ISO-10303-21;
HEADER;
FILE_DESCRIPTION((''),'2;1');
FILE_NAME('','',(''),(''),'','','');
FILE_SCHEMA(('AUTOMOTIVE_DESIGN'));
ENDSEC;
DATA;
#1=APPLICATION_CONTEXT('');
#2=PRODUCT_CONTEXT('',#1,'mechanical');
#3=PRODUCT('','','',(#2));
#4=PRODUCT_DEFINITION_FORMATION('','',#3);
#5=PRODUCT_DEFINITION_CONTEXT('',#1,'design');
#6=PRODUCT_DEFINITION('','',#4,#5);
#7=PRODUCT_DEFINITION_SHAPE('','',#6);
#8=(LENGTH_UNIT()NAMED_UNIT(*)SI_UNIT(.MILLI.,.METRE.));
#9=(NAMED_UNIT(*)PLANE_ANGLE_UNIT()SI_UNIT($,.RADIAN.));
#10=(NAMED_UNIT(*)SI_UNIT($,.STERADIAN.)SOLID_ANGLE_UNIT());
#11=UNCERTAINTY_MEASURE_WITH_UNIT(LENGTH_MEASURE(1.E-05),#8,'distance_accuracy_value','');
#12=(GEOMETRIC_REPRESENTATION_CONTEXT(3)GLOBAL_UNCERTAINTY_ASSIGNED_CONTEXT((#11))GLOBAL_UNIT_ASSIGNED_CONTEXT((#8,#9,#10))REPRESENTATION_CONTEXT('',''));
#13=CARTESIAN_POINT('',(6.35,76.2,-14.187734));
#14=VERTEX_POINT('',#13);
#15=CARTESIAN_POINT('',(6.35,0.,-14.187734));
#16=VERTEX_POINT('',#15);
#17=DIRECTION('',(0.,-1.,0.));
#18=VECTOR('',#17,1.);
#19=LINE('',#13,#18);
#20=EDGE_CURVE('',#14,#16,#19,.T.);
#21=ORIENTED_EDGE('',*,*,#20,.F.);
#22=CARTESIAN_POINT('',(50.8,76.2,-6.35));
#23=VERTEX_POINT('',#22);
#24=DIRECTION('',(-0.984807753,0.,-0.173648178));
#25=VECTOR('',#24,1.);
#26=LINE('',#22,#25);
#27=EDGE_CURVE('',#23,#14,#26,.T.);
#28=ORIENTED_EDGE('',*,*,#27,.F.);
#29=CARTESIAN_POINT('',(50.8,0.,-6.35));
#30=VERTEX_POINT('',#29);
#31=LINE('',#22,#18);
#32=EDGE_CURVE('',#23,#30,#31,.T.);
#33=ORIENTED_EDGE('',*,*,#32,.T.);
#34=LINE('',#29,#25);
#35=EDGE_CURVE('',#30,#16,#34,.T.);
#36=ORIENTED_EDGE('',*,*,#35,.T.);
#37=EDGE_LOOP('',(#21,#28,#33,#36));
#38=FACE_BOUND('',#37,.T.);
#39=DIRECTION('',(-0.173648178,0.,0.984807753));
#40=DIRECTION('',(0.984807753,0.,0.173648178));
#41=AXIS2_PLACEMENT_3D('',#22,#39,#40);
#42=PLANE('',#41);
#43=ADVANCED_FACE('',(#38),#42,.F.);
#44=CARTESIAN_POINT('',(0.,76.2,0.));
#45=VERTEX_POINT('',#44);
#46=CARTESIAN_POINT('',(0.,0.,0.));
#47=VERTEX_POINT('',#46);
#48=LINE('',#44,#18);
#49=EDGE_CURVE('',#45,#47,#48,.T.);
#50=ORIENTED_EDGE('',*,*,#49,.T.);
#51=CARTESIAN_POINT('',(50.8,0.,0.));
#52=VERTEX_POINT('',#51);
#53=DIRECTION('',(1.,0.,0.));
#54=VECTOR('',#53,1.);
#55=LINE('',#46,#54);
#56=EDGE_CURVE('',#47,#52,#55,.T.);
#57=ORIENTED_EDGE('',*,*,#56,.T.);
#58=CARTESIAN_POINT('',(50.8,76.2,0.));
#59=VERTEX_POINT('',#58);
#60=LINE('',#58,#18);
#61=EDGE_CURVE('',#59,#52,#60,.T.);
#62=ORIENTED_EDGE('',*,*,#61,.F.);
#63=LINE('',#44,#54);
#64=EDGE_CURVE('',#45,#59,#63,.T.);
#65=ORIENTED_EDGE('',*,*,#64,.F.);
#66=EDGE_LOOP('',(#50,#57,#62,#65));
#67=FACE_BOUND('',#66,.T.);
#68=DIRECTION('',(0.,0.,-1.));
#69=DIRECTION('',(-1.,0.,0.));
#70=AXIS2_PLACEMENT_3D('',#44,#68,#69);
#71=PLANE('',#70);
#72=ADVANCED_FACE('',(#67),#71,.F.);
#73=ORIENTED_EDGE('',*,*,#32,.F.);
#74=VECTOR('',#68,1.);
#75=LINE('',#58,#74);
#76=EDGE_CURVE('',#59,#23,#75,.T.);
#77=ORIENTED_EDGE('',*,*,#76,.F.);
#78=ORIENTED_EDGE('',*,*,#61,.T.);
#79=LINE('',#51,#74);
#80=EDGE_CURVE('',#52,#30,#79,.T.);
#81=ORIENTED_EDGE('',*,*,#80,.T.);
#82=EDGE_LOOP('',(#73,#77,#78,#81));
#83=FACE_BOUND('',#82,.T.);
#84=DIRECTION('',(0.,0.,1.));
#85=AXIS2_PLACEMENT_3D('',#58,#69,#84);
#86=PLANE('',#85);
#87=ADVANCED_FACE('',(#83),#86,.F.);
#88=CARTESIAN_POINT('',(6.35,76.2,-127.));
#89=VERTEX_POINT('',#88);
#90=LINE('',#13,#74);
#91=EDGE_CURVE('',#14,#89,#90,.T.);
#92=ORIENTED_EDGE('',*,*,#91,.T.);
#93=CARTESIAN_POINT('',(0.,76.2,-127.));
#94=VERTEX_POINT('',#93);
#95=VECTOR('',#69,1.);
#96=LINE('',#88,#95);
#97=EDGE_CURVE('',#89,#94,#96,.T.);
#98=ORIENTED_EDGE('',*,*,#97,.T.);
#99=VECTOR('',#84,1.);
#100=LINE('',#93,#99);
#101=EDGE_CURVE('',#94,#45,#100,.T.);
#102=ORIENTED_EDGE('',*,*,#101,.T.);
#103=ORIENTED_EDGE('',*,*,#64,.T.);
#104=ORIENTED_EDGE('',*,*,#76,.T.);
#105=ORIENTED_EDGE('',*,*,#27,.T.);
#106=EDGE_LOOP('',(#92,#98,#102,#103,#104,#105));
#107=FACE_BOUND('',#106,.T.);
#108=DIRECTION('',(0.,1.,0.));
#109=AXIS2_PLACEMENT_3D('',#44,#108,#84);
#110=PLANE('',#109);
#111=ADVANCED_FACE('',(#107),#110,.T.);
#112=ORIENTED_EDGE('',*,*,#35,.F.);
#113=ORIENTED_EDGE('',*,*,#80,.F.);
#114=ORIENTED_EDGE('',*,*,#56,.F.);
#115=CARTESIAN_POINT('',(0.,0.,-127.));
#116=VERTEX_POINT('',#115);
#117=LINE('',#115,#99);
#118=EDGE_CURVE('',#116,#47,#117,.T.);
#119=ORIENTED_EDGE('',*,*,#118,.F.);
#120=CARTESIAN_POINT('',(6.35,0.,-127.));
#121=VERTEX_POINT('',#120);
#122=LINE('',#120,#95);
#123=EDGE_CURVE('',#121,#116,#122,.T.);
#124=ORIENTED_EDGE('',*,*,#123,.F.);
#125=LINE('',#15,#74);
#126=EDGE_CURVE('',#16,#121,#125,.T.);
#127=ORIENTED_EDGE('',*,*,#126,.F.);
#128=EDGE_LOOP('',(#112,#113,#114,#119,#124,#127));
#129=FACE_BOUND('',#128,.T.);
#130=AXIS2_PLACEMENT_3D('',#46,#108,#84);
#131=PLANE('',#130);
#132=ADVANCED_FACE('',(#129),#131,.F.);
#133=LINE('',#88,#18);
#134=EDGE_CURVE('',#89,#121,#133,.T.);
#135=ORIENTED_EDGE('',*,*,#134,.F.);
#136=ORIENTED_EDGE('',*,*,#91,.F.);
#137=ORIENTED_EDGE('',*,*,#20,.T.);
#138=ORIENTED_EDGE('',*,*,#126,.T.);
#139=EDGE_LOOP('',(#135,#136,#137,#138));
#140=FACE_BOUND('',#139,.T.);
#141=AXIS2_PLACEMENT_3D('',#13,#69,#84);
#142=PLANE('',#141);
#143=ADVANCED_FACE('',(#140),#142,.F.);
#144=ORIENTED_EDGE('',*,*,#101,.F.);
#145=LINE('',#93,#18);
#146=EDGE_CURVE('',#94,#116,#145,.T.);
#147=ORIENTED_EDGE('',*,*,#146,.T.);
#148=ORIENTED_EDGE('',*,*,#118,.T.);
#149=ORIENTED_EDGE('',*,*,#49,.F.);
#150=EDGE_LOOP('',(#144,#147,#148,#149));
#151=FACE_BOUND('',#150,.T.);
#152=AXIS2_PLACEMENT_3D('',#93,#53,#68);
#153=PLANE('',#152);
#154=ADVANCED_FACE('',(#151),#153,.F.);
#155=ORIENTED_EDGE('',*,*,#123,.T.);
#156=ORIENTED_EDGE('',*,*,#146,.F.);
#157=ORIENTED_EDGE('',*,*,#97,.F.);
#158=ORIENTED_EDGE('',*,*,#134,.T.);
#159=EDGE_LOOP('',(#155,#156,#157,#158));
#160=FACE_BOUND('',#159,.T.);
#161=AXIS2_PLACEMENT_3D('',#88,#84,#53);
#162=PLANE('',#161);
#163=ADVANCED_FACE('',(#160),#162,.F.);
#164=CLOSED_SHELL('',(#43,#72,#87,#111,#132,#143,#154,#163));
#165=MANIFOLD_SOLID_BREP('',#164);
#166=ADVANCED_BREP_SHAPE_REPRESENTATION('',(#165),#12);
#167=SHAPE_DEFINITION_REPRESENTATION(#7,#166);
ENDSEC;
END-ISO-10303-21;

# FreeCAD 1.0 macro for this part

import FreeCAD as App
import Part
import Sketcher

V = App.Vector
Q = App.Units.Quantity


def add_polygon(sketch, points):
    """Adds a closed chain of lines whose ends are joined by coincident constraints."""
    first, n = sketch.GeometryCount, len(points)
    for a, b in zip(points, points[1:] + points[:1]):
        sketch.addGeometry(Part.LineSegment(App.Vector(*a, 0), App.Vector(*b, 0)), False)
    for i in range(n):
        sketch.addConstraint(Sketcher.Constraint("Coincident", first + i, 2, first + (i + 1) % n, 1))

doc = App.newDocument("Part")
params = doc.addObject("Spreadsheet::Sheet", "Params")
for row, (alias, value) in enumerate([
    ("sketch1_width", "2 in"),
    ("sketch1_height", "5 in"),
    ("sketch1_width2", "0.25 in"),
    ("pad1_length", "3 in"),
], start=1):
    params.set(f"A{row}", alias)
    params.set(f"B{row}", "=" + value)
    params.setAlias(f"B{row}", alias)

body = doc.addObject("PartDesign::Body", "Body")

# Sketch on XZ plane
sketch1 = doc.addObject("Sketcher::SketchObject", "Sketch")
body.addObject(sketch1)
sketch1.AttachmentSupport = (doc.XZ_Plane, [""])
sketch1.MapMode = "FlatFace"
add_polygon(sketch1, [(0, 0), (50.8, 0), (50.8, -6.35), (6.35, -14.187734), (6.35, -127), (0, -127)])  # lines 0-5
sketch1.addConstraint(Sketcher.Constraint("Horizontal", 0))
sketch1.addConstraint(Sketcher.Constraint("Vertical", 1))
sketch1.addConstraint(Sketcher.Constraint("Vertical", 3))
sketch1.addConstraint(Sketcher.Constraint("Horizontal", 4))
sketch1.addConstraint(Sketcher.Constraint("Vertical", 5))
sketch1.addConstraint(Sketcher.Constraint("Coincident", 5, 2, -1, 1))
sketch1.addConstraint(Sketcher.Constraint("Equal", 4, 1))
sketch1.addConstraint(Sketcher.Constraint("DistanceX", 0, 1, 0, 2, Q("2 in")))
sketch1.addConstraint(Sketcher.Constraint("DistanceY", 5, 1, 5, 2, Q("5 in")))
sketch1.addConstraint(Sketcher.Constraint("Angle", 2, Q("-170 deg")))
sketch1.addConstraint(Sketcher.Constraint("DistanceX", 4, 2, 4, 1, Q("0.25 in")))
sketch1.setExpression("Constraints[13]", "Params.sketch1_width")
sketch1.setExpression("Constraints[14]", "Params.sketch1_height")
sketch1.setExpression("Constraints[16]", "Params.sketch1_width2")
pad1 = doc.addObject("PartDesign::Pad", "Pad")
body.addObject(pad1)
pad1.Profile = sketch1
pad1.setExpression("Length", "Params.pad1_length")
pad1.Reversed = True

doc.recompute()
